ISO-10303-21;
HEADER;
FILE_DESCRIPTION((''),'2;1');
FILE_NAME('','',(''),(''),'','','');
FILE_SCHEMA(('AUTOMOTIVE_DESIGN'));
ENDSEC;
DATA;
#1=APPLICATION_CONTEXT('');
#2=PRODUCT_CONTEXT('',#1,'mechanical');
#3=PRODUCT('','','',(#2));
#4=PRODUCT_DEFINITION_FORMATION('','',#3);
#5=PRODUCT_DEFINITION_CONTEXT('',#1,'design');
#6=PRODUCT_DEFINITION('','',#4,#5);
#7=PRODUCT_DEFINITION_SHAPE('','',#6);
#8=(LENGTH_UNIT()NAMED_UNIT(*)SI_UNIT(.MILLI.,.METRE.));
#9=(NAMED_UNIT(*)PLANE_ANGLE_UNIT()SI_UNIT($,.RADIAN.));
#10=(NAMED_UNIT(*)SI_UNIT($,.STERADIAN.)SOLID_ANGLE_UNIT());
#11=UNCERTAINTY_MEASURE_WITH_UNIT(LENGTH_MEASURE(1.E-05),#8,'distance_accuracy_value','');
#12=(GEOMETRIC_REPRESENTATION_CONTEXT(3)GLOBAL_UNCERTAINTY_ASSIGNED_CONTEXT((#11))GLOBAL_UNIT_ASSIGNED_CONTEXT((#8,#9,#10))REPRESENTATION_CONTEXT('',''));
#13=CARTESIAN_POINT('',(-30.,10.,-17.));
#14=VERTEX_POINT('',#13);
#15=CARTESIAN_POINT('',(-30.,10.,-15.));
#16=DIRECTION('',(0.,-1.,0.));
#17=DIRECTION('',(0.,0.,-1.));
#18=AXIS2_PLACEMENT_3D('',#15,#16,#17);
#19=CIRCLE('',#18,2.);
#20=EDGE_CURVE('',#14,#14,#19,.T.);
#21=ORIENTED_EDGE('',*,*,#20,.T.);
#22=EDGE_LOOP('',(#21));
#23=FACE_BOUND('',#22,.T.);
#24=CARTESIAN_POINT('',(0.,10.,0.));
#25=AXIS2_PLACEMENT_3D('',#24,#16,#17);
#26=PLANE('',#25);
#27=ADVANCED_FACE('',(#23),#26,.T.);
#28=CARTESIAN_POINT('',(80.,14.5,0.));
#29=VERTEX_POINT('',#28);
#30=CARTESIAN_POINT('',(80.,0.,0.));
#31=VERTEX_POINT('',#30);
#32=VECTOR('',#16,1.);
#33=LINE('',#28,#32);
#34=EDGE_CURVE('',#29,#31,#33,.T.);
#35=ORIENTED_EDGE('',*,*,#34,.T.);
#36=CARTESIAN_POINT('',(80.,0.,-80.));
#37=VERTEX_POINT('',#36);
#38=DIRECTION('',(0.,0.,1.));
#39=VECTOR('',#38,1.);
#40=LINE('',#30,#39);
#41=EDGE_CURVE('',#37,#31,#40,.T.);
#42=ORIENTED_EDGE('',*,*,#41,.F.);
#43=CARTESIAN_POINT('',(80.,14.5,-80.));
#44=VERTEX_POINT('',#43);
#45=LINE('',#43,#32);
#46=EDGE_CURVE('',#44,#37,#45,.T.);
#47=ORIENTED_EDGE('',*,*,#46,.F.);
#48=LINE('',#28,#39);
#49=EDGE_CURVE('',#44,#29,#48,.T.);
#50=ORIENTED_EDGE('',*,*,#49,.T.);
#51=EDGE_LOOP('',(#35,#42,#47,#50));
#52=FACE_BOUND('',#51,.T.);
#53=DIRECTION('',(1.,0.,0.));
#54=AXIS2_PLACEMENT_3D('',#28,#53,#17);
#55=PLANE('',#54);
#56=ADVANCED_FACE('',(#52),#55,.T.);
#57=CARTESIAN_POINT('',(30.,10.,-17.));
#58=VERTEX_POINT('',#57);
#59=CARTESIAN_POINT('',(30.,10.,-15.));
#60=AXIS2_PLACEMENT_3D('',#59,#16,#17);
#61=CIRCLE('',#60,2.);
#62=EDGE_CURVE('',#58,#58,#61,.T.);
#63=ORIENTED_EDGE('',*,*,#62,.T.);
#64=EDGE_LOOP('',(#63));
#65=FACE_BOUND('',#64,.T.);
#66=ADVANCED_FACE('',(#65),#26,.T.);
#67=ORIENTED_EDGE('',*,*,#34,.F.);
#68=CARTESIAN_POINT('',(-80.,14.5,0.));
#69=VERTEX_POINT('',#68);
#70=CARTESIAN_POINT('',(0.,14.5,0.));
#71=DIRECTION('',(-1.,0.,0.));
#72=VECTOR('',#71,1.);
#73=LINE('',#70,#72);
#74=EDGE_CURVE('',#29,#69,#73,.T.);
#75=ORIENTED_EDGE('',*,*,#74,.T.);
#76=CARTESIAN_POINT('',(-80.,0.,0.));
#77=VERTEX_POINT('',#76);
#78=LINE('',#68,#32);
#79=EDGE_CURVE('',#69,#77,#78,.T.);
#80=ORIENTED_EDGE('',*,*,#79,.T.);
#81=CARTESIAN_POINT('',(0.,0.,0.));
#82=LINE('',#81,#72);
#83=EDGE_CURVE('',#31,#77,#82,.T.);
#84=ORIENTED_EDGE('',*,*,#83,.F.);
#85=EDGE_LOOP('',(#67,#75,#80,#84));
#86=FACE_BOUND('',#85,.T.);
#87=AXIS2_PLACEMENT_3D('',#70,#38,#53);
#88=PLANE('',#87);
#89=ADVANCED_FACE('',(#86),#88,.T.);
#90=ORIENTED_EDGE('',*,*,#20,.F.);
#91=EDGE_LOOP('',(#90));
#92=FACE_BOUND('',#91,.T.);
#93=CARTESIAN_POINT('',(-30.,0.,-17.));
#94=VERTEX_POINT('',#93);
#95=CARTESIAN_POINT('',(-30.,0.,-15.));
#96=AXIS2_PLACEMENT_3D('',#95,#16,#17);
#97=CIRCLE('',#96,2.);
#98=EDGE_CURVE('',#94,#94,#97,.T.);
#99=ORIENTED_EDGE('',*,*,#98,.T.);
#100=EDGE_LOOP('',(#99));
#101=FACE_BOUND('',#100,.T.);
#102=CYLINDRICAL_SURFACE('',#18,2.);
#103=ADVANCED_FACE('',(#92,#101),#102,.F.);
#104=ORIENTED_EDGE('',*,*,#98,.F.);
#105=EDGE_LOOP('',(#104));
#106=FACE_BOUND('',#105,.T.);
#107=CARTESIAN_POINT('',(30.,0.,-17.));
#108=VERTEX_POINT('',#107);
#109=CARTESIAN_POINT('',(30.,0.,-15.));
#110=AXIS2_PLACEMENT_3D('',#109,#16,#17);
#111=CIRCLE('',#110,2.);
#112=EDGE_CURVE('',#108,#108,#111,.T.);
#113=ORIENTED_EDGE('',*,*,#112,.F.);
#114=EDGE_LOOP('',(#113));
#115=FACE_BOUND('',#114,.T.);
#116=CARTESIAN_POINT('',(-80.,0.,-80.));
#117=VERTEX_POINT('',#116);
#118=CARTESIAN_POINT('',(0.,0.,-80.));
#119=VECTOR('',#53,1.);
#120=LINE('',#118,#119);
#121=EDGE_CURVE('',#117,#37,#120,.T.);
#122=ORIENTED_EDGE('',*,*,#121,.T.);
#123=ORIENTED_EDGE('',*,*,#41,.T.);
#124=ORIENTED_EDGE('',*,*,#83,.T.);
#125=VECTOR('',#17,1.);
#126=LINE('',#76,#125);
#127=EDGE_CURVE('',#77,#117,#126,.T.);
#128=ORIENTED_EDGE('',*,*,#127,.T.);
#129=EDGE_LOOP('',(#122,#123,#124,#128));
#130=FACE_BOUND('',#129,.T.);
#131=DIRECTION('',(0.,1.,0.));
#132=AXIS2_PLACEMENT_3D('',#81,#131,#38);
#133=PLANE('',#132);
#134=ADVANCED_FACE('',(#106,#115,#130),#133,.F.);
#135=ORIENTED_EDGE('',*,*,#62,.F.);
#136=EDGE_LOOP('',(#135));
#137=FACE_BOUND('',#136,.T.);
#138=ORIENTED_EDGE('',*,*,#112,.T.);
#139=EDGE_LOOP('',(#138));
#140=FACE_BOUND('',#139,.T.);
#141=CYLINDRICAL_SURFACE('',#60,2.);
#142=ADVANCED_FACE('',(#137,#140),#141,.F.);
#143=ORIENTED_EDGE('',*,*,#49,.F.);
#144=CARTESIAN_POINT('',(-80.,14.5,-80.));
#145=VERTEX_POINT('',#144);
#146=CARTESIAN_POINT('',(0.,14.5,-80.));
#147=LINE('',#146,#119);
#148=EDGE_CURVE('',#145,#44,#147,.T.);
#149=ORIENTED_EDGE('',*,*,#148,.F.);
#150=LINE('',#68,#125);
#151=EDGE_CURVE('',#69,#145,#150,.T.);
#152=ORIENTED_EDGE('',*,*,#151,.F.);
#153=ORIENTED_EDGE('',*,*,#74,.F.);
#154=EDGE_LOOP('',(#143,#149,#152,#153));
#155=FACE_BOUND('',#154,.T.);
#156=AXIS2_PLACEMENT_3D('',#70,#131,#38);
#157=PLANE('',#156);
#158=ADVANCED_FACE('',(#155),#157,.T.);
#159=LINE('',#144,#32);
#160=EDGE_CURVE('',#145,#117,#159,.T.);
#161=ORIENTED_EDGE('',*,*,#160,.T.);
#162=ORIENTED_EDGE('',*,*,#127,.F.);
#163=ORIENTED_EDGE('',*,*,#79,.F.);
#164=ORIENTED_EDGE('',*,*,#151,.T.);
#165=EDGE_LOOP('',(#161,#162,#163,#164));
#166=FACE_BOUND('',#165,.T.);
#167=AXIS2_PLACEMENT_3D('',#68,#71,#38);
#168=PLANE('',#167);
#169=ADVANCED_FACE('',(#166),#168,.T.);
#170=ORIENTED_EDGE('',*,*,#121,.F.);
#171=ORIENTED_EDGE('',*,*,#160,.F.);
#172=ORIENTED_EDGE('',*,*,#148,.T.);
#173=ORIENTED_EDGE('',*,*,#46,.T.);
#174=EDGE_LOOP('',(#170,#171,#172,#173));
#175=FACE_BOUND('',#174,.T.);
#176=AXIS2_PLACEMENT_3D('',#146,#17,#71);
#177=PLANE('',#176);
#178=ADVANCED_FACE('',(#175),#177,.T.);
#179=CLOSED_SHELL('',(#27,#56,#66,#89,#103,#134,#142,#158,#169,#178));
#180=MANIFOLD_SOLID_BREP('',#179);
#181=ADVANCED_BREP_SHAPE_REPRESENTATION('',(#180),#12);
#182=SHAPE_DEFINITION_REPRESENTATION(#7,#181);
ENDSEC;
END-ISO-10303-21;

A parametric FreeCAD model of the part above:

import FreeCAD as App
import Part
import Sketcher
from FreeCAD import Vector

doc = App.newDocument("Part")
body = doc.addObject("PartDesign::Body", "Body")

# Sketch on XZ plane
sketch1 = body.newObject("Sketcher::SketchObject", "Sketch")
sketch1.AttachmentSupport = (doc.getObject("XZ_Plane"), [""])
sketch1.MapMode = "FlatFace"
sketch1.addGeometry(Part.LineSegment(Vector(-80, -80, 0), Vector(-80, 0, 0)), False)
sketch1.addGeometry(Part.LineSegment(Vector(-80, 0, 0), Vector(80, 0, 0)), False)
sketch1.addGeometry(Part.LineSegment(Vector(80, 0, 0), Vector(80, -80, 0)), False)
sketch1.addGeometry(Part.LineSegment(Vector(80, -80, 0), Vector(-80, -80, 0)), False)
sketch1.addConstraint(Sketcher.Constraint("Coincident", 0, 2, 1, 1))
sketch1.addConstraint(Sketcher.Constraint("Coincident", 1, 2, 2, 1))
sketch1.addConstraint(Sketcher.Constraint("Coincident", 2, 2, 3, 1))
sketch1.addConstraint(Sketcher.Constraint("Coincident", 3, 2, 0, 1))
sketch1.addConstraint(Sketcher.Constraint("Vertical", 0))
sketch1.addConstraint(Sketcher.Constraint("Horizontal", 1))
sketch1.addConstraint(Sketcher.Constraint("Vertical", 2))
sketch1.addConstraint(Sketcher.Constraint("Horizontal", 3))
sketch1.addConstraint(Sketcher.Constraint("Symmetric", 0, 2, 1, 2, -1, 1))
sketch1.addConstraint(Sketcher.Constraint("DistanceX", 1, 1, 1, 2, 160.0))
sketch1.addConstraint(Sketcher.Constraint("DistanceY", 0, 1, 0, 2, 80.0))
pad1 = body.newObject("PartDesign::Pad", "Pad")
pad1.Profile = sketch1
pad1.Length = 14.5
pad1.Reversed = True

# Sketch on XZ plane
sketch2 = body.newObject("Sketcher::SketchObject", "Sketch001")
sketch2.AttachmentSupport = (doc.getObject("XZ_Plane"), [""])
sketch2.MapMode = "FlatFace"
sketch2.addGeometry(Part.Circle(Vector(-30, -15, 0), Vector(0, 0, 1), 2), False)
sketch2.addGeometry(Part.Circle(Vector(30, -15, 0), Vector(0, 0, 1), 2), False)
sketch2.addConstraint(Sketcher.Constraint("Equal", 0, 1))
sketch2.addConstraint(Sketcher.Constraint("Symmetric", 0, 3, 1, 3, -2))
sketch2.addConstraint(Sketcher.Constraint("Diameter", 0, 4.0))
sketch2.addConstraint(Sketcher.Constraint("DistanceX", 0, 3, -1, 1, 30.0))
sketch2.addConstraint(Sketcher.Constraint("DistanceY", 0, 3, -1, 1, 15.0))
pocket1 = body.newObject("PartDesign::Pocket", "Pocket")
pocket1.Profile = sketch2
pocket1.Length = 10

doc.recompute()
